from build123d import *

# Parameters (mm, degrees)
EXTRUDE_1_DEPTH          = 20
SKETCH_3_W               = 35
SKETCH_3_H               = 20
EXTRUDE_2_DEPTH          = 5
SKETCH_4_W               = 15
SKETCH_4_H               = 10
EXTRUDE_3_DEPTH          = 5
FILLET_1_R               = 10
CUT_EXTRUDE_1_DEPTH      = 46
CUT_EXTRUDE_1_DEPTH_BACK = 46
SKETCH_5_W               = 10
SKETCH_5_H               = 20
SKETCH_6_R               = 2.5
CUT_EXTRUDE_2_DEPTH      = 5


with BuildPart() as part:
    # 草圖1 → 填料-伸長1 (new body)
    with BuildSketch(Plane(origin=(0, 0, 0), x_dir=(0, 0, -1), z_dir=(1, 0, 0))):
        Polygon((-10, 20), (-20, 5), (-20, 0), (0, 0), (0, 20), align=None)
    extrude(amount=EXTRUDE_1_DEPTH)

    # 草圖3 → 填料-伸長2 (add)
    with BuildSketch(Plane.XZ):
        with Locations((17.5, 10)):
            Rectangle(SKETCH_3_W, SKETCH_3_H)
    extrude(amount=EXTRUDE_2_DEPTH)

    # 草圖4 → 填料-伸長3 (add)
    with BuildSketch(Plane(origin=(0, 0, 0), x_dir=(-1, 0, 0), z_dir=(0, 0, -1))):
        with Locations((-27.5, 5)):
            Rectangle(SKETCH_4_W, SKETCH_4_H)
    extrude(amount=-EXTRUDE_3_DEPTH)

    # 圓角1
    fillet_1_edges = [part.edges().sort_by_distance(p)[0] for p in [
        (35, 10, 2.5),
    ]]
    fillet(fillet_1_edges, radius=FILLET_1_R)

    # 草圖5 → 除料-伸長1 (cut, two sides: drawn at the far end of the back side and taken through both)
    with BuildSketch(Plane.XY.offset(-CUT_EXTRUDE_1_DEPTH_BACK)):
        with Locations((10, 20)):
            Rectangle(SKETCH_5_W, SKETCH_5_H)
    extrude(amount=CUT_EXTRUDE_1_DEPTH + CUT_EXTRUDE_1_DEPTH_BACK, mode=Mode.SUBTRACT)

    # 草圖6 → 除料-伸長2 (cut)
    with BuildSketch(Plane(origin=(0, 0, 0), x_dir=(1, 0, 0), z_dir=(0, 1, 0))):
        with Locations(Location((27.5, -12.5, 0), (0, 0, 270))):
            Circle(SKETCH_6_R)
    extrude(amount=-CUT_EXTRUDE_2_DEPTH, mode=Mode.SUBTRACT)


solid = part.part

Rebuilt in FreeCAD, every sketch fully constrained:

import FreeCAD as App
import Part
import Sketcher
Q = App.Units.Quantity


def edges_at(feature, points):
    """Names of the edges that pass closest to the given points."""
    edges = feature.Shape.Edges
    near = lambda p: min(range(len(edges)), key=lambda i: edges[i].distToShape(Part.Vertex(*p))[0])
    return sorted({f"Edge{near(p) + 1}" for p in points})

doc = App.newDocument("Part")
body = doc.addObject("PartDesign::Body", "Body")

# Sketch on YZ plane
sketch1 = body.newObject("Sketcher::SketchObject", "Sketch")
sketch1.AttachmentSupport = (doc.getObject("YZ_Plane"), [""])
sketch1.MapMode = "FlatFace"
sketch1.addGeometry([
    Part.LineSegment(App.Vector(20, 10, 0), App.Vector(5, 20, 0)),  # 0
    Part.LineSegment(App.Vector(5, 20, 0), App.Vector(0, 20, 0)),  # 1
    Part.LineSegment(App.Vector(0, 20, 0), App.Vector(0, 0, 0)),  # 2
    Part.LineSegment(App.Vector(0, 0, 0), App.Vector(20, 0, 0)),  # 3
    Part.LineSegment(App.Vector(20, 0, 0), App.Vector(20, 10, 0)),  # 4
], False)
sketch1.addConstraint([
    Sketcher.Constraint("Coincident", 0, 2, 1, 1),
    Sketcher.Constraint("Coincident", 1, 2, 2, 1),
    Sketcher.Constraint("Coincident", 2, 2, 3, 1),
    Sketcher.Constraint("Coincident", 3, 2, 4, 1),
    Sketcher.Constraint("Coincident", 4, 2, 0, 1),
    Sketcher.Constraint("Horizontal", 1),
    Sketcher.Constraint("Vertical", 2),
    Sketcher.Constraint("Horizontal", 3),
    Sketcher.Constraint("Vertical", 4),
    Sketcher.Constraint("Coincident", 2, 2, -1, 1),
    Sketcher.Constraint("Equal", 3, 2),
    Sketcher.Constraint("DistanceX", 1, 2, 1, 1, Q("5 mm")),
    Sketcher.Constraint("DistanceX", 3, 1, 3, 2, Q("20 mm")),
    Sketcher.Constraint("DistanceY", 4, 1, 4, 2, Q("10 mm")),
])
pad1 = body.newObject("PartDesign::Pad", "Pad")
pad1.Profile = sketch1
pad1.Length = 20

# Sketch on XZ plane
sketch2 = body.newObject("Sketcher::SketchObject", "Sketch001")
sketch2.AttachmentSupport = (doc.getObject("XZ_Plane"), [""])
sketch2.MapMode = "FlatFace"
sketch2.addGeometry([
    Part.LineSegment(App.Vector(0, 20, 0), App.Vector(0, 0, 0)),
    Part.LineSegment(App.Vector(0, 0, 0), App.Vector(35, 0, 0)),
    Part.LineSegment(App.Vector(35, 0, 0), App.Vector(35, 20, 0)),
    Part.LineSegment(App.Vector(35, 20, 0), App.Vector(0, 20, 0)),
], False)
sketch2.addConstraint([
    Sketcher.Constraint("Coincident", 0, 2, 1, 1),
    Sketcher.Constraint("Coincident", 1, 2, 2, 1),
    Sketcher.Constraint("Coincident", 2, 2, 3, 1),
    Sketcher.Constraint("Coincident", 3, 2, 0, 1),
    Sketcher.Constraint("Vertical", 0),
    Sketcher.Constraint("Horizontal", 1),
    Sketcher.Constraint("Vertical", 2),
    Sketcher.Constraint("Horizontal", 3),
    Sketcher.Constraint("Coincident", 0, 2, -1, 1),
    Sketcher.Constraint("DistanceX", 1, 1, 1, 2, Q("35 mm")),
    Sketcher.Constraint("DistanceY", 0, 2, 0, 1, Q("20 mm")),
])
pad2 = body.newObject("PartDesign::Pad", "Pad001")
pad2.Profile = sketch2
pad2.Length = 5

# Sketch on XY plane
sketch3 = body.newObject("Sketcher::SketchObject", "Sketch002")
sketch3.AttachmentSupport = (doc.getObject("XY_Plane"), [""])
sketch3.MapMode = "FlatFace"
sketch3.addGeometry([
    Part.LineSegment(App.Vector(35, 10, 0), App.Vector(35, 0, 0)),
    Part.LineSegment(App.Vector(35, 0, 0), App.Vector(20, 0, 0)),
    Part.LineSegment(App.Vector(20, 0, 0), App.Vector(20, 10, 0)),
    Part.LineSegment(App.Vector(20, 10, 0), App.Vector(35, 10, 0)),
], False)
sketch3.addConstraint([
    Sketcher.Constraint("Coincident", 0, 2, 1, 1),
    Sketcher.Constraint("Coincident", 1, 2, 2, 1),
    Sketcher.Constraint("Coincident", 2, 2, 3, 1),
    Sketcher.Constraint("Coincident", 3, 2, 0, 1),
    Sketcher.Constraint("Vertical", 0),
    Sketcher.Constraint("Horizontal", 1),
    Sketcher.Constraint("Vertical", 2),
    Sketcher.Constraint("Horizontal", 3),
    Sketcher.Constraint("PointOnObject", 0, 2, -1),
    Sketcher.Constraint("DistanceX", 1, 2, 1, 1, Q("15 mm")),
    Sketcher.Constraint("DistanceY", 0, 2, 0, 1, Q("10 mm")),
    Sketcher.Constraint("DistanceX", -1, 1, 0, 2, Q("35 mm")),
])
pad3 = body.newObject("PartDesign::Pad", "Pad002")
pad3.Profile = sketch3
pad3.Length = 5
doc.recompute()

fillet = body.newObject("PartDesign::Fillet", "Fillet")
fillet.Base = (pad3, edges_at(pad3, [(35, 10, 2.5)]))
fillet.Radius = 10

# Sketch on XY plane
sketch4 = body.newObject("Sketcher::SketchObject", "Sketch003")
sketch4.AttachmentSupport = (doc.getObject("XY_Plane"), [""])
sketch4.MapMode = "FlatFace"
sketch4.addGeometry([
    Part.LineSegment(App.Vector(5, 30, 0), App.Vector(5, 10, 0)),
    Part.LineSegment(App.Vector(5, 10, 0), App.Vector(15, 10, 0)),
    Part.LineSegment(App.Vector(15, 10, 0), App.Vector(15, 30, 0)),
    Part.LineSegment(App.Vector(15, 30, 0), App.Vector(5, 30, 0)),
], False)
sketch4.addConstraint([
    Sketcher.Constraint("Coincident", 0, 2, 1, 1),
    Sketcher.Constraint("Coincident", 1, 2, 2, 1),
    Sketcher.Constraint("Coincident", 2, 2, 3, 1),
    Sketcher.Constraint("Coincident", 3, 2, 0, 1),
    Sketcher.Constraint("Vertical", 0),
    Sketcher.Constraint("Horizontal", 1),
    Sketcher.Constraint("Vertical", 2),
    Sketcher.Constraint("Horizontal", 3),
    Sketcher.Constraint("DistanceX", 1, 1, 1, 2, Q("10 mm")),
    Sketcher.Constraint("DistanceY", 0, 2, 0, 1, Q("20 mm")),
    Sketcher.Constraint("DistanceX", -1, 1, 0, 2, Q("5 mm")),
    Sketcher.Constraint("DistanceY", -1, 1, 0, 2, Q("10 mm")),
])
pocket1 = body.newObject("PartDesign::Pocket", "Pocket")
pocket1.Profile = sketch4
pocket1.Type = "ThroughAll"
pocket1.Midplane = True

# Sketch on XZ plane
sketch5 = body.newObject("Sketcher::SketchObject", "Sketch004")
sketch5.AttachmentSupport = (doc.getObject("XZ_Plane"), [""])
sketch5.MapMode = "FlatFace"
sketch5.addGeometry(Part.Circle(App.Vector(27.5, 12.5, 0), App.Vector(0, 0, 1), 2.5), False)
sketch5.addConstraint([
    Sketcher.Constraint("Diameter", 0, Q("5 mm")),
    Sketcher.Constraint("DistanceX", -1, 1, 0, 3, Q("27.5 mm")),
    Sketcher.Constraint("DistanceY", -1, 1, 0, 3, Q("12.5 mm")),
])
pocket2 = body.newObject("PartDesign::Pocket", "Pocket001")
pocket2.Profile = sketch5
pocket2.Length = 5
pocket2.Reversed = True

doc.recompute()
